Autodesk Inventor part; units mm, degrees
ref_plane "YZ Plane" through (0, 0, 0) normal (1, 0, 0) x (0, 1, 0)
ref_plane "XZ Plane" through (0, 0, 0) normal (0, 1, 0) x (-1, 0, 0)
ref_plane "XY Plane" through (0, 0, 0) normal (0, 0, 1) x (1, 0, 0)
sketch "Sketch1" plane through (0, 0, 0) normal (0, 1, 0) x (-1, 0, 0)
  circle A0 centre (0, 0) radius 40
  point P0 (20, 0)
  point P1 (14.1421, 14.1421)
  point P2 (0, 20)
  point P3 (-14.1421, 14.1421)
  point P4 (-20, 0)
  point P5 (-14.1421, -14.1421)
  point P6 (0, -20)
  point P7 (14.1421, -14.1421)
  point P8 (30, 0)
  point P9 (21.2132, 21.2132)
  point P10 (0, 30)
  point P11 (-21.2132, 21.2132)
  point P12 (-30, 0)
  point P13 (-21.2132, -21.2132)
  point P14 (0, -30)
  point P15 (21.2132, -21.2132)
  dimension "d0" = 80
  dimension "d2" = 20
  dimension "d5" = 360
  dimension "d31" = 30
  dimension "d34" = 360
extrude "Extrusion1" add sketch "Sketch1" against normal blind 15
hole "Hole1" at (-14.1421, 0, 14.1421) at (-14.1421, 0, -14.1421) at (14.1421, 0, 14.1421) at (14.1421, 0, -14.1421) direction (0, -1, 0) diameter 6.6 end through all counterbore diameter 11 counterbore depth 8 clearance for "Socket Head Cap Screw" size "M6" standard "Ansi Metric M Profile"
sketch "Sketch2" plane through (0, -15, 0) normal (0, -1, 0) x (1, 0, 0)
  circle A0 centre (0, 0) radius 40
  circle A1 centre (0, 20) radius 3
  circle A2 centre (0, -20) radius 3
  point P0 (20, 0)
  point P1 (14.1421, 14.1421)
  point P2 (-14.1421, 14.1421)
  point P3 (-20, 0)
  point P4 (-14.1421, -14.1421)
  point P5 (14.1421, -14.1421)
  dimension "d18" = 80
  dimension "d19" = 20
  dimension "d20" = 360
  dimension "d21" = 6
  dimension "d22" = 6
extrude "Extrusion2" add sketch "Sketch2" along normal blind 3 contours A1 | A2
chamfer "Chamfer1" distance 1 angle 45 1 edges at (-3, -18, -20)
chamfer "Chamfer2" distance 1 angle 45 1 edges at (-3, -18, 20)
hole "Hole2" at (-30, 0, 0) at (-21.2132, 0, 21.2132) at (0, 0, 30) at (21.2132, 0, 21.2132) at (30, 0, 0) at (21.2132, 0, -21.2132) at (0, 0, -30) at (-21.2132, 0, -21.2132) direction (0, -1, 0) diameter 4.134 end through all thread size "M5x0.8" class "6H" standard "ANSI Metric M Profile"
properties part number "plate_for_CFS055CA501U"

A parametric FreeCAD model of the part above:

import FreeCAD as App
import Part
import Sketcher
Q = App.Units.Quantity


def edges_at(feature, points):
    """Names of the edges that pass closest to the given points."""
    edges = feature.Shape.Edges
    near = lambda p: min(range(len(edges)), key=lambda i: edges[i].distToShape(Part.Vertex(*p))[0])
    return sorted({f"Edge{near(p) + 1}" for p in points})

doc = App.newDocument("Part")
params = doc.addObject("Spreadsheet::Sheet", "Params")
for row, (alias, value) in enumerate([
    ("sketch1_diameter", "80 mm"),
    ("pad1_length", "15 mm"),
    ("sketch2_diameter", "6.6 mm"),
    ("hole_diameter", "6.6 mm"),
    ("hole_cbore_diameter", "11 mm"),
    ("hole_cbore_depth", "8 mm"),
    ("sketch3_diameter", "6 mm"),
    ("pad2_length", "3 mm"),
    ("chamfer_size", "1 mm"),
    ("chamfer2_size", "1 mm"),
    ("hole2_diameter", "4.134 mm"),
], start=1):
    params.set(f"A{row}", alias)
    params.set(f"B{row}", "=" + value)
    params.setAlias(f"B{row}", alias)

body = doc.addObject("PartDesign::Body", "Body")

sketch1 = body.newObject("Sketcher::SketchObject", "Sketch")
sketch1.AttachmentSupport = (doc.getObject("XZ_Plane"), [""])
sketch1.MapMode = "FlatFace"
sketch1.addGeometry(Part.Circle(App.Vector(0, 0, 0), App.Vector(0, 0, 1), 40), False)
sketch1.addConstraint(Sketcher.Constraint("Coincident", 0, 3, -1, 1))
sketch1.addConstraint(Sketcher.Constraint("Diameter", 0, Q("80 mm")))
sketch1.setExpression("Constraints[1]", "Params.sketch1_diameter")
pad1 = body.newObject("PartDesign::Pad", "Pad")
pad1.Profile = sketch1
pad1.setExpression("Length", "Params.pad1_length")

sketch2 = body.newObject("Sketcher::SketchObject", "Sketch001")
sketch2.AttachmentSupport = (doc.getObject("XZ_Plane"), [""])
sketch2.MapMode = "FlatFace"
sketch2.addGeometry(Part.Circle(App.Vector(-14.1, 14.1, 0), App.Vector(0, 0, 1), 3.3), False)
sketch2.addGeometry(Part.Circle(App.Vector(-14.1, -14.1, 0), App.Vector(0, 0, 1), 3.3), False)
sketch2.addGeometry(Part.Circle(App.Vector(14.1, 14.1, 0), App.Vector(0, 0, 1), 3.3), False)
sketch2.addGeometry(Part.Circle(App.Vector(14.1, -14.1, 0), App.Vector(0, 0, 1), 3.3), False)
sketch2.addConstraint(Sketcher.Constraint("Equal", 0, 1))
sketch2.addConstraint(Sketcher.Constraint("Equal", 1, 2))
sketch2.addConstraint(Sketcher.Constraint("Equal", 2, 3))
sketch2.addConstraint(Sketcher.Constraint("Symmetric", 1, 3, 2, 3, -1, 1))
sketch2.addConstraint(Sketcher.Constraint("Symmetric", 0, 3, 3, 3, -1, 1))
sketch2.addConstraint(Sketcher.Constraint("Symmetric", 0, 3, 2, 3, -2))
sketch2.addConstraint(Sketcher.Constraint("Diameter", 0, Q("6.6 mm")))
sketch2.addConstraint(Sketcher.Constraint("DistanceX", 0, 3, -1, 1, Q("14.142 mm")))
sketch2.addConstraint(Sketcher.Constraint("DistanceY", -1, 1, 0, 3, Q("14.142 mm")))
sketch2.setExpression("Constraints[6]", "Params.sketch2_diameter")
doc.recompute()
hole = body.newObject("PartDesign::Hole", "Hole")
hole.Profile = sketch2
hole.ThreadType = "None"
hole.setExpression("Diameter", "Params.hole_diameter")
hole.DepthType = "ThroughAll"
hole.HoleCutType = "Counterbore"
hole.setExpression("HoleCutDiameter", "Params.hole_cbore_diameter")
hole.setExpression("HoleCutDepth", "Params.hole_cbore_depth")
hole.Reversed = True

sketch3 = body.newObject("Sketcher::SketchObject", "Sketch002")
sketch3.AttachmentSupport = (doc.getObject("XZ_Plane"), [""])
sketch3.MapMode = "FlatFace"
sketch3.AttachmentOffset = App.Placement(App.Vector(0, 0, 15), App.Rotation())
sketch3.addGeometry(Part.Circle(App.Vector(0, 20, 0), App.Vector(0, 0, 1), 3), False)
sketch3.addGeometry(Part.Circle(App.Vector(0, -20, 0), App.Vector(0, 0, 1), 3), False)
sketch3.addConstraint(Sketcher.Constraint("Equal", 0, 1))
sketch3.addConstraint(Sketcher.Constraint("Symmetric", 0, 3, 1, 3, -1, 1))
sketch3.addConstraint(Sketcher.Constraint("PointOnObject", 0, 3, -2))
sketch3.addConstraint(Sketcher.Constraint("Diameter", 0, Q("6 mm")))
sketch3.addConstraint(Sketcher.Constraint("DistanceY", -1, 1, 0, 3, Q("20 mm")))
sketch3.setExpression("Constraints[3]", "Params.sketch3_diameter")
pad2 = body.newObject("PartDesign::Pad", "Pad001")
pad2.Profile = sketch3
pad2.setExpression("Length", "Params.pad2_length")
doc.recompute()

chamfer = body.newObject("PartDesign::Chamfer", "Chamfer")
chamfer.Base = (pad2, edges_at(pad2, [(-3, -18, -20)]))
chamfer.setExpression("Size", "Params.chamfer_size")
doc.recompute()

chamfer2 = body.newObject("PartDesign::Chamfer", "Chamfer001")
chamfer2.Base = (chamfer, edges_at(chamfer, [(-3, -18, 20)]))
chamfer2.setExpression("Size", "Params.chamfer2_size")

sketch4 = body.newObject("Sketcher::SketchObject", "Sketch003")
sketch4.AttachmentSupport = (doc.getObject("XZ_Plane"), [""])
sketch4.MapMode = "FlatFace"
sketch4.addGeometry(Part.Circle(App.Vector(-30, 0, 0), App.Vector(0, 0, 1), 2.1), False)
sketch4.addGeometry(Part.Circle(App.Vector(-21.2, 21.2, 0), App.Vector(0, 0, 1), 2.1), False)
sketch4.addGeometry(Part.Circle(App.Vector(0, 30, 0), App.Vector(0, 0, 1), 2.1), False)
sketch4.addGeometry(Part.Circle(App.Vector(21.2, 21.2, 0), App.Vector(0, 0, 1), 2.1), False)
sketch4.addGeometry(Part.Circle(App.Vector(30, 0, 0), App.Vector(0, 0, 1), 2.1), False)
sketch4.addGeometry(Part.Circle(App.Vector(21.2, -21.2, 0), App.Vector(0, 0, 1), 2.1), False)
sketch4.addGeometry(Part.Circle(App.Vector(0, -30, 0), App.Vector(0, 0, 1), 2.1), False)
sketch4.addGeometry(Part.Circle(App.Vector(-21.2, -21.2, 0), App.Vector(0, 0, 1), 2.1), False)
sketch4.addConstraint(Sketcher.Constraint("Equal", 0, 1))
sketch4.addConstraint(Sketcher.Constraint("Equal", 1, 2))
sketch4.addConstraint(Sketcher.Constraint("Equal", 2, 3))
sketch4.addConstraint(Sketcher.Constraint("Equal", 3, 4))
sketch4.addConstraint(Sketcher.Constraint("Equal", 4, 5))
sketch4.addConstraint(Sketcher.Constraint("Equal", 5, 6))
sketch4.addConstraint(Sketcher.Constraint("Equal", 6, 7))
sketch4.addConstraint(Sketcher.Constraint("Symmetric", 0, 3, 4, 3, -1, 1))
sketch4.addConstraint(Sketcher.Constraint("Symmetric", 1, 3, 5, 3, -1, 1))
sketch4.addConstraint(Sketcher.Constraint("Symmetric", 2, 3, 6, 3, -1, 1))
sketch4.addConstraint(Sketcher.Constraint("Symmetric", 3, 3, 7, 3, -1, 1))
sketch4.addConstraint(Sketcher.Constraint("Symmetric", 1, 3, 3, 3, -2))
sketch4.addConstraint(Sketcher.Constraint("PointOnObject", 0, 3, -1))
sketch4.addConstraint(Sketcher.Constraint("PointOnObject", 2, 3, -2))
sketch4.addConstraint(Sketcher.Constraint("Diameter", 0, Q("4.134 mm")))
sketch4.addConstraint(Sketcher.Constraint("DistanceX", 0, 3, -1, 1, Q("30 mm")))
sketch4.addConstraint(Sketcher.Constraint("DistanceY", -1, 1, 2, 3, Q("30 mm")))
sketch4.addConstraint(Sketcher.Constraint("DistanceX", 1, 3, -1, 1, Q("21.2132 mm")))
sketch4.addConstraint(Sketcher.Constraint("DistanceY", -1, 1, 1, 3, Q("21.2132 mm")))
doc.recompute()
hole2 = body.newObject("PartDesign::Hole", "Hole001")
hole2.Profile = sketch4
hole2.ThreadType = "None"
hole2.setExpression("Diameter", "Params.hole2_diameter")
hole2.DepthType = "ThroughAll"
hole2.Reversed = True

doc.recompute()
